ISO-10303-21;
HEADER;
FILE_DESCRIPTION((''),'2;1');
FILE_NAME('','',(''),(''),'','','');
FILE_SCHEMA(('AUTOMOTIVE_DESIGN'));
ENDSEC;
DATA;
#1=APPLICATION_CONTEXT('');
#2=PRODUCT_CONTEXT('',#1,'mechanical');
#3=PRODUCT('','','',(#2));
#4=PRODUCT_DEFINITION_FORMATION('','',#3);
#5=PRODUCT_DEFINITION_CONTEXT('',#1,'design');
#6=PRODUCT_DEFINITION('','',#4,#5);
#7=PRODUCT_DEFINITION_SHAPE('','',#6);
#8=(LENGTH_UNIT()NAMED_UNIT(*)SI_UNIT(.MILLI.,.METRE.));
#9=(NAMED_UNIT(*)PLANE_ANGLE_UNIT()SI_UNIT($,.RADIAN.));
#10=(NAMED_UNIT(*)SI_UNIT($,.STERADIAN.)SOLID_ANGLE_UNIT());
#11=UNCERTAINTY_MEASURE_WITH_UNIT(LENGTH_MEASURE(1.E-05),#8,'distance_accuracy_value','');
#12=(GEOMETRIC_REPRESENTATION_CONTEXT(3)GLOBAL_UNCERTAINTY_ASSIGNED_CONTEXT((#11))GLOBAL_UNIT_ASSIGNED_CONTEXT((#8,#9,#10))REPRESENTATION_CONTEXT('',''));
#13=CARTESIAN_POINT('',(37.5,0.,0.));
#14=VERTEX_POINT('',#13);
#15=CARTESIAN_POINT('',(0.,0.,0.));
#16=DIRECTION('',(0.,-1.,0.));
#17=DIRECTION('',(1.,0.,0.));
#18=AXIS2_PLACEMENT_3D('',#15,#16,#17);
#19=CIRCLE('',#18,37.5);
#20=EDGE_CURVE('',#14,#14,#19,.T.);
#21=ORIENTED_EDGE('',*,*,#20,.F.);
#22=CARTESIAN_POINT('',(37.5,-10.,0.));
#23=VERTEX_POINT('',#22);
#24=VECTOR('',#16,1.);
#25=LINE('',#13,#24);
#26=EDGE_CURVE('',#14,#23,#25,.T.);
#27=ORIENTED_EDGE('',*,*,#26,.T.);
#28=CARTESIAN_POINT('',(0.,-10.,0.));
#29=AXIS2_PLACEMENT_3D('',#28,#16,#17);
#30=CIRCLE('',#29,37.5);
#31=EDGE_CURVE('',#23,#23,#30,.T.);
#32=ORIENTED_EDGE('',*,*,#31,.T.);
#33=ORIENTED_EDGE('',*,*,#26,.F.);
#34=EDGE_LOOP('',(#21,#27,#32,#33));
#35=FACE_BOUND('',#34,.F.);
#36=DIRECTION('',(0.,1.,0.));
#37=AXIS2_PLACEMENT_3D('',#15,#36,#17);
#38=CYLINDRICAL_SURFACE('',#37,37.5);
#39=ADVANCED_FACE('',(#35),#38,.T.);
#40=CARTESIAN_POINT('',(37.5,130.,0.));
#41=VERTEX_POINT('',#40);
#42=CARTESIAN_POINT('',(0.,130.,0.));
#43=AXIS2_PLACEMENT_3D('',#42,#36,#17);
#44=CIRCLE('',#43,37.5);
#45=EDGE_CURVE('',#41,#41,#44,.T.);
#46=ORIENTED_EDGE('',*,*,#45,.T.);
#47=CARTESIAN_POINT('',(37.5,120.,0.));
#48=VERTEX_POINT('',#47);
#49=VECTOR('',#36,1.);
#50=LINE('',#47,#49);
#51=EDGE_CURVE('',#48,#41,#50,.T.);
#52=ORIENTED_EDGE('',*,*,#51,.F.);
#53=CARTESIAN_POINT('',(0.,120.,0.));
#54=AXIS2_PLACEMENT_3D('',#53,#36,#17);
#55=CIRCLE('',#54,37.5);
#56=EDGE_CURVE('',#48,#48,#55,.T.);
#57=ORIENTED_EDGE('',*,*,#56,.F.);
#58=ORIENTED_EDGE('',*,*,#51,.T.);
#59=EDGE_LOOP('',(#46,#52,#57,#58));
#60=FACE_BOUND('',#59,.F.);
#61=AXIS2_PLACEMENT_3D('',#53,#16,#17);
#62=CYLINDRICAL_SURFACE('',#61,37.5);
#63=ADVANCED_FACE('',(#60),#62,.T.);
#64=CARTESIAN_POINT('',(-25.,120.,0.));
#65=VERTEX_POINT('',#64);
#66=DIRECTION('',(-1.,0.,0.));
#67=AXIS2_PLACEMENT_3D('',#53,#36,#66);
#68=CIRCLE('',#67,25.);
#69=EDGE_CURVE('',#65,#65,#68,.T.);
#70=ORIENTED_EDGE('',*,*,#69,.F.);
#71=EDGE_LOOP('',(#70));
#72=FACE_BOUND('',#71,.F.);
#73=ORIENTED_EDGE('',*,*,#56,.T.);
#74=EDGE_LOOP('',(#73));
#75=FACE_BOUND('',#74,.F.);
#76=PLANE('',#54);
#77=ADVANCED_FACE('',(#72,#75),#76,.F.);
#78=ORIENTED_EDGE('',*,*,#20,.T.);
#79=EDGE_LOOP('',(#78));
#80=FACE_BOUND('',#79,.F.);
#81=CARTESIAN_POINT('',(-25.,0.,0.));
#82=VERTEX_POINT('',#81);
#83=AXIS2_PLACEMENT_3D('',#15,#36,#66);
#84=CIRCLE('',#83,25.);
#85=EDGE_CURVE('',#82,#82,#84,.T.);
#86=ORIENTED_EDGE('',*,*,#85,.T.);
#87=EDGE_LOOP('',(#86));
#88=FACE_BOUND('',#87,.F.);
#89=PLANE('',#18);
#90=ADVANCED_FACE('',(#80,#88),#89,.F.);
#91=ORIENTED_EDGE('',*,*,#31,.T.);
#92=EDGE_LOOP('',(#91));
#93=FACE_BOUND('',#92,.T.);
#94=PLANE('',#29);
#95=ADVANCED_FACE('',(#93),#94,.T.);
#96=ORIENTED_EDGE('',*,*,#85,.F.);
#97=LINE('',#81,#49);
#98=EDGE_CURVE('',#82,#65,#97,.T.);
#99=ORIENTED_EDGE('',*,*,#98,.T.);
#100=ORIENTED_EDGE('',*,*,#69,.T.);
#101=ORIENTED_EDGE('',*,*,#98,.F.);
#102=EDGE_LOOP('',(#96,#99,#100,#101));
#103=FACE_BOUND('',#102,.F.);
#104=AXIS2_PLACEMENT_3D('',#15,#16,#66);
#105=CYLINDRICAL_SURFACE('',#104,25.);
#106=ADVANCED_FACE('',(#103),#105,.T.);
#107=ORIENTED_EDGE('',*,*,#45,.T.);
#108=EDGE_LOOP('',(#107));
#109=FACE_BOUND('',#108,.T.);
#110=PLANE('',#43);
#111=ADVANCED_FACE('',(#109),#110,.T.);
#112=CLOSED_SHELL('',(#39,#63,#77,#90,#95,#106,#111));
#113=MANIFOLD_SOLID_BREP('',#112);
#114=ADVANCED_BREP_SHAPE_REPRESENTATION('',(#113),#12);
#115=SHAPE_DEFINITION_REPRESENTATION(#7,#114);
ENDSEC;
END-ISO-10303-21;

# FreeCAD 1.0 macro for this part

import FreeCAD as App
import Part
import Sketcher

V = App.Vector

doc = App.newDocument("Part")
body = doc.addObject("PartDesign::Body", "Body")

sketch1 = body.newObject("Sketcher::SketchObject", "Sketch")
sketch1.AttachmentSupport = (doc.getObject("XZ_Plane"), [""])
sketch1.MapMode = "FlatFace"
sketch1.addGeometry(Part.Circle(V(0, 0, 0), V(0, 0, 1), 25), False)
sketch1.addConstraint([
    Sketcher.Constraint("Coincident", 0, 3, -1, 1),
    Sketcher.Constraint("Diameter", 0, 50.0),
])
pad1 = body.newObject("PartDesign::Pad", "Pad")
pad1.Profile = sketch1
pad1.Length = 120
pad1.Reversed = True

sketch2 = body.newObject("Sketcher::SketchObject", "Sketch001")
sketch2.AttachmentSupport = (doc.getObject("XZ_Plane"), [""])
sketch2.MapMode = "FlatFace"
sketch2.AttachmentOffset = App.Placement(V(0, 0, -120), App.Rotation())
sketch2.addGeometry(Part.Circle(V(0, 0, 0), V(0, 0, 1), 38), False)
sketch2.addConstraint([
    Sketcher.Constraint("Coincident", 0, 3, -1, 1),
    Sketcher.Constraint("Diameter", 0, 75.0),
])
pad2 = body.newObject("PartDesign::Pad", "Pad001")
pad2.Profile = sketch2
pad2.Length = 10
pad2.Reversed = True

sketch3 = body.newObject("Sketcher::SketchObject", "Sketch002")
sketch3.AttachmentSupport = (doc.getObject("XZ_Plane"), [""])
sketch3.MapMode = "FlatFace"
sketch3.addGeometry(Part.Circle(V(0, 0, 0), V(0, 0, 1), 38), False)
sketch3.addConstraint([
    Sketcher.Constraint("Coincident", 0, 3, -1, 1),
    Sketcher.Constraint("Diameter", 0, 75.0),
])
pad3 = body.newObject("PartDesign::Pad", "Pad002")
pad3.Profile = sketch3
pad3.Length = 10

doc.recompute()
